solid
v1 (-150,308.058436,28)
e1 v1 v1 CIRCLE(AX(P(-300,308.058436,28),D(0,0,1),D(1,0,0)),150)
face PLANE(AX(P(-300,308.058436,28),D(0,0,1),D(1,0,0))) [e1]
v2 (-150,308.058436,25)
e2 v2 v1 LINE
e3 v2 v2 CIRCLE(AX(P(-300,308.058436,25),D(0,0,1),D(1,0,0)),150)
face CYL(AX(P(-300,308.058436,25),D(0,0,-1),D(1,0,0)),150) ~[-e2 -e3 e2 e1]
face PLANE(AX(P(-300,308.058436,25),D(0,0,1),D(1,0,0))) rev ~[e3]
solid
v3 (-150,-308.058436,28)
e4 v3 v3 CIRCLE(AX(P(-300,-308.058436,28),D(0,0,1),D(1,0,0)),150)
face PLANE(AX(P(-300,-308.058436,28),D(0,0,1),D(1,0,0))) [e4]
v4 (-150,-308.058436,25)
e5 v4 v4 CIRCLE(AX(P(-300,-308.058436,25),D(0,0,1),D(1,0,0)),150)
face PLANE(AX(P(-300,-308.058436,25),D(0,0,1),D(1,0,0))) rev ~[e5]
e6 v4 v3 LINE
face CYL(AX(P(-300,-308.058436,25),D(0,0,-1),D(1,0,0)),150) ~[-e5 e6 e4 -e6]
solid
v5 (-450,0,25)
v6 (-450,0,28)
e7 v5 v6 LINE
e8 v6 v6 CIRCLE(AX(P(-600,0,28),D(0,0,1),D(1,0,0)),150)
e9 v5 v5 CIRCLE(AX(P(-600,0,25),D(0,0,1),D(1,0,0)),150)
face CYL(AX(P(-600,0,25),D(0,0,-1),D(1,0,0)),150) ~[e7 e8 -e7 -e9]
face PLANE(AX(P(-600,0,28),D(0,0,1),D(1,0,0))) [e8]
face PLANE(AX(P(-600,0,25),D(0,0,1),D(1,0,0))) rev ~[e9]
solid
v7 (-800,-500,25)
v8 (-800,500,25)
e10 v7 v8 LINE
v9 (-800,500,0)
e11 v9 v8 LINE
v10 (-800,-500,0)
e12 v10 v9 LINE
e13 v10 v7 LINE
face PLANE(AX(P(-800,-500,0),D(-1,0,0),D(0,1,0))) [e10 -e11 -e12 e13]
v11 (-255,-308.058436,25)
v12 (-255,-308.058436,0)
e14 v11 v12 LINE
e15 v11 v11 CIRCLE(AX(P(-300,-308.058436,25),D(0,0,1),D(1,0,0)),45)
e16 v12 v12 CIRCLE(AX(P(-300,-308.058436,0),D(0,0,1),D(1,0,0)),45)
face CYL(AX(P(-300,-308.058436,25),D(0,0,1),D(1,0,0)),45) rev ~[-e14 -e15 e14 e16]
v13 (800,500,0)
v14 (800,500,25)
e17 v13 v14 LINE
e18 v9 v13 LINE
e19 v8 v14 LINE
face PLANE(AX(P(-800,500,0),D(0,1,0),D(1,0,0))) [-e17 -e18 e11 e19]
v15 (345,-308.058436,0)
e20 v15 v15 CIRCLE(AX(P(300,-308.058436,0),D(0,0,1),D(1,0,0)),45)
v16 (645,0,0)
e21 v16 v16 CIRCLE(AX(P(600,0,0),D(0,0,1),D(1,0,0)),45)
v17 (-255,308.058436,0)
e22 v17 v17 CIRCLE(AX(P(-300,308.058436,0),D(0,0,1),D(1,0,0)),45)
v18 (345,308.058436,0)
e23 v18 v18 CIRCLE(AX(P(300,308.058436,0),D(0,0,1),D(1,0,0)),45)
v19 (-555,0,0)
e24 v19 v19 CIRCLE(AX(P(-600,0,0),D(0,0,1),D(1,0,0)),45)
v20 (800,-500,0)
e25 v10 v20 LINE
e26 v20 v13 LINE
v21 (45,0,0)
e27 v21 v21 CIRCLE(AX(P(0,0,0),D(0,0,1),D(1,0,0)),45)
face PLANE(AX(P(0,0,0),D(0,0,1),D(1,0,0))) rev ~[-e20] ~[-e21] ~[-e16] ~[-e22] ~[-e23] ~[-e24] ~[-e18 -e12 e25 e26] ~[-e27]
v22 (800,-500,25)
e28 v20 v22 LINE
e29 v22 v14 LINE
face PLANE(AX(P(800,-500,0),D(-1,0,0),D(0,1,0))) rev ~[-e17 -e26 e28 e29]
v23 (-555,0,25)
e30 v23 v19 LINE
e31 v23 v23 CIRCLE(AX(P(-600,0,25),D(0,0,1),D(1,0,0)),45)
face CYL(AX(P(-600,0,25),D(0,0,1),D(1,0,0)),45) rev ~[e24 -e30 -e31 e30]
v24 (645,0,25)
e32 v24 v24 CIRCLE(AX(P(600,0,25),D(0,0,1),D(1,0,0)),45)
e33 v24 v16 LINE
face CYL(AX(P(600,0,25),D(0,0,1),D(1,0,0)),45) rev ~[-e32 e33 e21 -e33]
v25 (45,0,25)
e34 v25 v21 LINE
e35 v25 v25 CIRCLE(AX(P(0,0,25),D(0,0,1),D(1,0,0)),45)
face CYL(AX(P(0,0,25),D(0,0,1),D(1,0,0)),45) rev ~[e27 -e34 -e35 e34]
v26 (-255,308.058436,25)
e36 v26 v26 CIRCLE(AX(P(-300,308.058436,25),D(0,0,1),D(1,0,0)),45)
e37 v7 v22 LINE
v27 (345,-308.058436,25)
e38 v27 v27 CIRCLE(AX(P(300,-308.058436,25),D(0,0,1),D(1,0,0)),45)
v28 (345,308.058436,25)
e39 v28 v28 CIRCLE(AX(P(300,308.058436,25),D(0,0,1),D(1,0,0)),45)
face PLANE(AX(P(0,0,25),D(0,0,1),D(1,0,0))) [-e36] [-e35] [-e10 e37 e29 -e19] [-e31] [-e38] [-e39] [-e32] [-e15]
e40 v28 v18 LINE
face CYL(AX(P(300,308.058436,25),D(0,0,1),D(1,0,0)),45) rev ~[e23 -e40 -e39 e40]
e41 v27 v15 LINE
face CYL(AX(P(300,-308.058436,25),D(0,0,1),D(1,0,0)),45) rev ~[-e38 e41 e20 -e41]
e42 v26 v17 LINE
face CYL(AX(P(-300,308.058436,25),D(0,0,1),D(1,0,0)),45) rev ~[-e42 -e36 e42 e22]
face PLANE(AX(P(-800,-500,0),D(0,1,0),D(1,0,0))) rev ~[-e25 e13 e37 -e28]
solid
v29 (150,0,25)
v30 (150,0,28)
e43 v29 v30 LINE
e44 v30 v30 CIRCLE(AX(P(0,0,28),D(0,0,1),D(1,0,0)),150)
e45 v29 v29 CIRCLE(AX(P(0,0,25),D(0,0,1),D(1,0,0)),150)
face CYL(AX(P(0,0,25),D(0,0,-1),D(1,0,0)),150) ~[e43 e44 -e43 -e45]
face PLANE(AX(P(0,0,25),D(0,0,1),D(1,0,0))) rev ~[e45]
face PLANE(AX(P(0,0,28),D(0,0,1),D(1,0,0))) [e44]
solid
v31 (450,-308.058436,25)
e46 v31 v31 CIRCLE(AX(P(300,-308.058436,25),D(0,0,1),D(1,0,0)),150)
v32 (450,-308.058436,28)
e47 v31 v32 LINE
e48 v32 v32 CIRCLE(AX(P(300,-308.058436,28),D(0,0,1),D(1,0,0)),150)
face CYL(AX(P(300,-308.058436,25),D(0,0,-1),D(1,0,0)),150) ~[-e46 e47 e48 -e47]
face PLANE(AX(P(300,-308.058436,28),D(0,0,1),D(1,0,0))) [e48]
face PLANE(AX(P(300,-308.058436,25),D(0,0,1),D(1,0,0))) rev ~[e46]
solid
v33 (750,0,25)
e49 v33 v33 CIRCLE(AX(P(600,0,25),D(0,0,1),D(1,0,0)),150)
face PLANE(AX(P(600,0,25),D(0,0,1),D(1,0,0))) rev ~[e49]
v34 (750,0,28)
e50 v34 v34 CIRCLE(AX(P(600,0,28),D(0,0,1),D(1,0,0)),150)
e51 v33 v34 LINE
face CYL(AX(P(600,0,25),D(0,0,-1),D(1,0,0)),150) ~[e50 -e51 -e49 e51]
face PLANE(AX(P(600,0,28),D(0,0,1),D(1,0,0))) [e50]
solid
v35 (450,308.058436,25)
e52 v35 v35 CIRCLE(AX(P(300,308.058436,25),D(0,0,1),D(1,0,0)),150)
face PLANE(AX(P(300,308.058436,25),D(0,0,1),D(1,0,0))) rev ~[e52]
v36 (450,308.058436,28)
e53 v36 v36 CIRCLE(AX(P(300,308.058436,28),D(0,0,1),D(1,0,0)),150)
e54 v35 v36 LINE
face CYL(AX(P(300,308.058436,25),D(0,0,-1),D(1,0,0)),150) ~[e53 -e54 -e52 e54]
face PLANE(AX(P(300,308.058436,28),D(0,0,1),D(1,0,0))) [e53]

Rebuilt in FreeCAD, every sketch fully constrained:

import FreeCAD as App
import Part
import Sketcher
from FreeCAD import Vector

doc = App.newDocument("Part")
params = doc.addObject("Spreadsheet::Sheet", "Params")
for row, (alias, value) in enumerate([
    ("sketch1_width", "1600 mm"),
    ("sketch1_height", "1000 mm"),
    ("pad1_length", "25 mm"),
    ("sketch2_diameter", "90 mm"),
    ("pocket1_length", "25 mm"),
    ("sketch3_diameter", "300 mm"),
    ("pad2_length", "3 mm"),
    ("sketch4_diameter", "300 mm"),
    ("pad3_length", "3 mm"),
    ("sketch5_diameter", "300 mm"),
    ("pad4_length", "3 mm"),
    ("sketch6_diameter", "300 mm"),
    ("pad5_length", "3 mm"),
    ("sketch7_diameter", "300 mm"),
    ("pad6_length", "3 mm"),
    ("sketch8_diameter", "300 mm"),
    ("pad7_length", "3 mm"),
    ("sketch9_diameter", "300 mm"),
    ("pad8_length", "3 mm"),
], start=1):
    params.set(f"A{row}", alias)
    params.set(f"B{row}", "=" + value)
    params.setAlias(f"B{row}", alias)

body = doc.addObject("PartDesign::Body", "Body")

# Sketch on XY plane
sketch1 = body.newObject("Sketcher::SketchObject", "Sketch")
sketch1.AttachmentSupport = (doc.getObject("XY_Plane"), [""])
sketch1.MapMode = "FlatFace"
sketch1.addGeometry(Part.LineSegment(Vector(-800, 500, 0), Vector(-800, -500, 0)), False)
sketch1.addGeometry(Part.LineSegment(Vector(-800, -500, 0), Vector(800, -500, 0)), False)
sketch1.addGeometry(Part.LineSegment(Vector(800, -500, 0), Vector(800, 500, 0)), False)
sketch1.addGeometry(Part.LineSegment(Vector(800, 500, 0), Vector(-800, 500, 0)), False)
sketch1.addConstraint(Sketcher.Constraint("Coincident", 0, 2, 1, 1))
sketch1.addConstraint(Sketcher.Constraint("Coincident", 1, 2, 2, 1))
sketch1.addConstraint(Sketcher.Constraint("Coincident", 2, 2, 3, 1))
sketch1.addConstraint(Sketcher.Constraint("Coincident", 3, 2, 0, 1))
sketch1.addConstraint(Sketcher.Constraint("Vertical", 0))
sketch1.addConstraint(Sketcher.Constraint("Horizontal", 1))
sketch1.addConstraint(Sketcher.Constraint("Vertical", 2))
sketch1.addConstraint(Sketcher.Constraint("Horizontal", 3))
sketch1.addConstraint(Sketcher.Constraint("Symmetric", 0, 2, 2, 2, -1, 1))
sketch1.addConstraint(Sketcher.Constraint("DistanceX", 1, 1, 1, 2, 1600.0))
sketch1.addConstraint(Sketcher.Constraint("DistanceY", 0, 2, 0, 1, 1000.0))
sketch1.setExpression("Constraints[9]", "Params.sketch1_width")
sketch1.setExpression("Constraints[10]", "Params.sketch1_height")
pad1 = body.newObject("PartDesign::Pad", "Pad")
pad1.Profile = sketch1
pad1.setExpression("Length", "Params.pad1_length")

# Sketch on XY plane
sketch2 = body.newObject("Sketcher::SketchObject", "Sketch001")
sketch2.AttachmentSupport = (doc.getObject("XY_Plane"), [""])
sketch2.MapMode = "FlatFace"
sketch2.AttachmentOffset = App.Placement(Vector(0, 0, 25), App.Rotation())
sketch2.addGeometry(Part.Circle(Vector(-600, 0, 0), Vector(0, 0, 1), 45), False)
sketch2.addGeometry(Part.Circle(Vector(-300, 308, 0), Vector(0, 0, 1), 45), False)
sketch2.addGeometry(Part.Circle(Vector(300, 308, 0), Vector(0, 0, 1), 45), False)
sketch2.addGeometry(Part.Circle(Vector(600, 0, 0), Vector(0, 0, 1), 45), False)
sketch2.addGeometry(Part.Circle(Vector(0, 0, 0), Vector(0, 0, 1), 45), False)
sketch2.addGeometry(Part.Circle(Vector(300, -308, 0), Vector(0, 0, 1), 45), False)
sketch2.addGeometry(Part.Circle(Vector(-300, -308, 0), Vector(0, 0, 1), 45), False)
sketch2.addConstraint(Sketcher.Constraint("Coincident", 4, 3, -1, 1))
sketch2.addConstraint(Sketcher.Constraint("Equal", 0, 1))
sketch2.addConstraint(Sketcher.Constraint("Equal", 1, 2))
sketch2.addConstraint(Sketcher.Constraint("Equal", 2, 3))
sketch2.addConstraint(Sketcher.Constraint("Equal", 3, 4))
sketch2.addConstraint(Sketcher.Constraint("Equal", 4, 5))
sketch2.addConstraint(Sketcher.Constraint("Equal", 5, 6))
sketch2.addConstraint(Sketcher.Constraint("Symmetric", 0, 3, 3, 3, -1, 1))
sketch2.addConstraint(Sketcher.Constraint("Symmetric", 1, 3, 5, 3, -1, 1))
sketch2.addConstraint(Sketcher.Constraint("Symmetric", 2, 3, 6, 3, -1, 1))
sketch2.addConstraint(Sketcher.Constraint("Symmetric", 1, 3, 2, 3, -2))
sketch2.addConstraint(Sketcher.Constraint("PointOnObject", 0, 3, -1))
sketch2.addConstraint(Sketcher.Constraint("Diameter", 0, 90.0))
sketch2.addConstraint(Sketcher.Constraint("DistanceX", 0, 3, -1, 1, 600.0))
sketch2.addConstraint(Sketcher.Constraint("DistanceX", 1, 3, -1, 1, 300.0))
sketch2.addConstraint(Sketcher.Constraint("DistanceY", -1, 1, 1, 3, 308.058436))
sketch2.setExpression("Constraints[12]", "Params.sketch2_diameter")
pocket1 = body.newObject("PartDesign::Pocket", "Pocket")
pocket1.Profile = sketch2
pocket1.setExpression("Length", "Params.pocket1_length")
body2 = doc.addObject("PartDesign::Body", "Body001")

# Sketch on XY plane
sketch3 = body2.newObject("Sketcher::SketchObject", "Sketch002")
sketch3.AttachmentSupport = (doc.getObject("XY_Plane001"), [""])
sketch3.MapMode = "FlatFace"
sketch3.AttachmentOffset = App.Placement(Vector(0, 0, 25), App.Rotation())
sketch3.addGeometry(Part.Circle(Vector(-600, 0, 0), Vector(0, 0, 1), 150), False)
sketch3.addConstraint(Sketcher.Constraint("PointOnObject", 0, 3, -1))
sketch3.addConstraint(Sketcher.Constraint("Diameter", 0, 300.0))
sketch3.addConstraint(Sketcher.Constraint("DistanceX", 0, 3, -1, 1, 600.0))
sketch3.setExpression("Constraints[1]", "Params.sketch3_diameter")
pad2 = body2.newObject("PartDesign::Pad", "Pad001")
pad2.Profile = sketch3
pad2.setExpression("Length", "Params.pad2_length")
body3 = doc.addObject("PartDesign::Body", "Body002")

# Sketch on XY plane
sketch4 = body3.newObject("Sketcher::SketchObject", "Sketch003")
sketch4.AttachmentSupport = (doc.getObject("XY_Plane002"), [""])
sketch4.MapMode = "FlatFace"
sketch4.AttachmentOffset = App.Placement(Vector(0, 0, 25), App.Rotation())
sketch4.addGeometry(Part.Circle(Vector(-300, 308, 0), Vector(0, 0, 1), 150), False)
sketch4.addConstraint(Sketcher.Constraint("Diameter", 0, 300.0))
sketch4.addConstraint(Sketcher.Constraint("DistanceX", 0, 3, -1, 1, 300.0))
sketch4.addConstraint(Sketcher.Constraint("DistanceY", -1, 1, 0, 3, 308.058436))
sketch4.setExpression("Constraints[0]", "Params.sketch4_diameter")
pad3 = body3.newObject("PartDesign::Pad", "Pad002")
pad3.Profile = sketch4
pad3.setExpression("Length", "Params.pad3_length")
body4 = doc.addObject("PartDesign::Body", "Body003")

# Sketch on XY plane
sketch5 = body4.newObject("Sketcher::SketchObject", "Sketch004")
sketch5.AttachmentSupport = (doc.getObject("XY_Plane003"), [""])
sketch5.MapMode = "FlatFace"
sketch5.AttachmentOffset = App.Placement(Vector(0, 0, 25), App.Rotation())
sketch5.addGeometry(Part.Circle(Vector(0, 0, 0), Vector(0, 0, 1), 150), False)
sketch5.addConstraint(Sketcher.Constraint("Coincident", 0, 3, -1, 1))
sketch5.addConstraint(Sketcher.Constraint("Diameter", 0, 300.0))
sketch5.setExpression("Constraints[1]", "Params.sketch5_diameter")
pad4 = body4.newObject("PartDesign::Pad", "Pad003")
pad4.Profile = sketch5
pad4.setExpression("Length", "Params.pad4_length")
body5 = doc.addObject("PartDesign::Body", "Body004")

# Sketch on XY plane
sketch6 = body5.newObject("Sketcher::SketchObject", "Sketch005")
sketch6.AttachmentSupport = (doc.getObject("XY_Plane004"), [""])
sketch6.MapMode = "FlatFace"
sketch6.AttachmentOffset = App.Placement(Vector(0, 0, 25), App.Rotation())
sketch6.addGeometry(Part.Circle(Vector(300, 308, 0), Vector(0, 0, 1), 150), False)
sketch6.addConstraint(Sketcher.Constraint("Diameter", 0, 300.0))
sketch6.addConstraint(Sketcher.Constraint("DistanceX", -1, 1, 0, 3, 300.0))
sketch6.addConstraint(Sketcher.Constraint("DistanceY", -1, 1, 0, 3, 308.058436))
sketch6.setExpression("Constraints[0]", "Params.sketch6_diameter")
pad5 = body5.newObject("PartDesign::Pad", "Pad004")
pad5.Profile = sketch6
pad5.setExpression("Length", "Params.pad5_length")
body6 = doc.addObject("PartDesign::Body", "Body005")

# Sketch on XY plane
sketch7 = body6.newObject("Sketcher::SketchObject", "Sketch006")
sketch7.AttachmentSupport = (doc.getObject("XY_Plane005"), [""])
sketch7.MapMode = "FlatFace"
sketch7.AttachmentOffset = App.Placement(Vector(0, 0, 25), App.Rotation())
sketch7.addGeometry(Part.Circle(Vector(300, -308, 0), Vector(0, 0, 1), 150), False)
sketch7.addConstraint(Sketcher.Constraint("Diameter", 0, 300.0))
sketch7.addConstraint(Sketcher.Constraint("DistanceX", -1, 1, 0, 3, 300.0))
sketch7.addConstraint(Sketcher.Constraint("DistanceY", 0, 3, -1, 1, 308.058436))
sketch7.setExpression("Constraints[0]", "Params.sketch7_diameter")
pad6 = body6.newObject("PartDesign::Pad", "Pad005")
pad6.Profile = sketch7
pad6.setExpression("Length", "Params.pad6_length")
body7 = doc.addObject("PartDesign::Body", "Body006")

# Sketch on XY plane
sketch8 = body7.newObject("Sketcher::SketchObject", "Sketch007")
sketch8.AttachmentSupport = (doc.getObject("XY_Plane006"), [""])
sketch8.MapMode = "FlatFace"
sketch8.AttachmentOffset = App.Placement(Vector(0, 0, 25), App.Rotation())
sketch8.addGeometry(Part.Circle(Vector(-300, -308, 0), Vector(0, 0, 1), 150), False)
sketch8.addConstraint(Sketcher.Constraint("Diameter", 0, 300.0))
sketch8.addConstraint(Sketcher.Constraint("DistanceX", 0, 3, -1, 1, 300.0))
sketch8.addConstraint(Sketcher.Constraint("DistanceY", 0, 3, -1, 1, 308.058436))
sketch8.setExpression("Constraints[0]", "Params.sketch8_diameter")
pad7 = body7.newObject("PartDesign::Pad", "Pad006")
pad7.Profile = sketch8
pad7.setExpression("Length", "Params.pad7_length")
body8 = doc.addObject("PartDesign::Body", "Body007")

# Sketch on XY plane
sketch9 = body8.newObject("Sketcher::SketchObject", "Sketch008")
sketch9.AttachmentSupport = (doc.getObject("XY_Plane007"), [""])
sketch9.MapMode = "FlatFace"
sketch9.AttachmentOffset = App.Placement(Vector(0, 0, 25), App.Rotation())
sketch9.addGeometry(Part.Circle(Vector(600, 0, 0), Vector(0, 0, 1), 150), False)
sketch9.addConstraint(Sketcher.Constraint("PointOnObject", 0, 3, -1))
sketch9.addConstraint(Sketcher.Constraint("Diameter", 0, 300.0))
sketch9.addConstraint(Sketcher.Constraint("DistanceX", -1, 1, 0, 3, 600.0))
sketch9.setExpression("Constraints[1]", "Params.sketch9_diameter")
pad8 = body8.newObject("PartDesign::Pad", "Pad007")
pad8.Profile = sketch9
pad8.setExpression("Length", "Params.pad8_length")

doc.recompute()
